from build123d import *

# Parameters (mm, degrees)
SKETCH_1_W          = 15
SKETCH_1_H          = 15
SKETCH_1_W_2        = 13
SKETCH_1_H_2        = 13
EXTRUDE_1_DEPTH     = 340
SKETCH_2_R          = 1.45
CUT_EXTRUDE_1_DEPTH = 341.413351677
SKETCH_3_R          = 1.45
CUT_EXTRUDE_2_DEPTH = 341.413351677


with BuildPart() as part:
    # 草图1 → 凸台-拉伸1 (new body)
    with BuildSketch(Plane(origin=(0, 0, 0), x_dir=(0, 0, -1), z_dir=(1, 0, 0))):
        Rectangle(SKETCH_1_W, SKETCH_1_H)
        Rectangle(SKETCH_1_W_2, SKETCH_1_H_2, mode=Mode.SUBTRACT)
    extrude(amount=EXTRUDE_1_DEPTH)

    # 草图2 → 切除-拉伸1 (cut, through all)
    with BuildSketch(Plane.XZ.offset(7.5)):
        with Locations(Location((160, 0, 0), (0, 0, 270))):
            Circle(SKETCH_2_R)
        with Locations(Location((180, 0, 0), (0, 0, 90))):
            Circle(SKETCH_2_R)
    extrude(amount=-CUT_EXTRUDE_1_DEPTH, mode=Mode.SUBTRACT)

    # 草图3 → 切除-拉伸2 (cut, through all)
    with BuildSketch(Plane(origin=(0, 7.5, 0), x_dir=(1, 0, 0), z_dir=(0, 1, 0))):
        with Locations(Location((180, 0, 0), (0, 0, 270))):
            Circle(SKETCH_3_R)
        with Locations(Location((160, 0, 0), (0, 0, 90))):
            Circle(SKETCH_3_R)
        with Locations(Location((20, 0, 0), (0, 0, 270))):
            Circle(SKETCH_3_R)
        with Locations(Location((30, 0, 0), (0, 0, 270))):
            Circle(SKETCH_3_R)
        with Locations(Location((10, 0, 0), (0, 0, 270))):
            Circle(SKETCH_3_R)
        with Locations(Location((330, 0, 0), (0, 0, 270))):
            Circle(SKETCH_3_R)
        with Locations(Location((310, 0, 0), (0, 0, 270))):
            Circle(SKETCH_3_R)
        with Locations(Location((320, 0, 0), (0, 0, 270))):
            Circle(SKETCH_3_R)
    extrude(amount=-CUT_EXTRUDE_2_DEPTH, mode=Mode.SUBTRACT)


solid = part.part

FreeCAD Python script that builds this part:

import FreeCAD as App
import Part
import Sketcher

doc = App.newDocument("Part")
params = doc.addObject("Spreadsheet::Sheet", "Params")
for row, (alias, value) in enumerate([
    ("sketch1_width", "15 mm"),
    ("sketch1_width2", "13 mm"),
    ("pad1_length", "340 mm"),
    ("sketch2_diameter", "2.9 mm"),
    ("sketch3_diameter", "2.9 mm"),
], start=1):
    params.set(f"A{row}", alias)
    params.set(f"B{row}", "=" + value)
    params.setAlias(f"B{row}", alias)

body = doc.addObject("PartDesign::Body", "Body")

# Sketch on YZ plane
sketch1 = body.newObject("Sketcher::SketchObject", "Sketch")
sketch1.AttachmentSupport = (doc.getObject("YZ_Plane"), [""])
sketch1.MapMode = "FlatFace"
sketch1.addGeometry([
    Part.LineSegment(App.Vector(8, 8, 0), App.Vector(-8, 8, 0)),  # 0
    Part.LineSegment(App.Vector(-8, 8, 0), App.Vector(-8, -8, 0)),  # 1
    Part.LineSegment(App.Vector(-8, -8, 0), App.Vector(8, -8, 0)),  # 2
    Part.LineSegment(App.Vector(8, -8, 0), App.Vector(8, 8, 0)),  # 3
    Part.LineSegment(App.Vector(-6, -6, 0), App.Vector(-6, 6, 0)),  # 4
    Part.LineSegment(App.Vector(-6, 6, 0), App.Vector(6, 6, 0)),  # 5
    Part.LineSegment(App.Vector(6, 6, 0), App.Vector(6, -6, 0)),  # 6
    Part.LineSegment(App.Vector(6, -6, 0), App.Vector(-6, -6, 0)),  # 7
], False)
sketch1.addConstraint([
    Sketcher.Constraint("Coincident", 0, 2, 1, 1),
    Sketcher.Constraint("Coincident", 1, 2, 2, 1),
    Sketcher.Constraint("Coincident", 2, 2, 3, 1),
    Sketcher.Constraint("Coincident", 3, 2, 0, 1),
    Sketcher.Constraint("Coincident", 4, 2, 5, 1),
    Sketcher.Constraint("Coincident", 5, 2, 6, 1),
    Sketcher.Constraint("Coincident", 6, 2, 7, 1),
    Sketcher.Constraint("Coincident", 7, 2, 4, 1),
    Sketcher.Constraint("Horizontal", 0),
    Sketcher.Constraint("Vertical", 1),
    Sketcher.Constraint("Horizontal", 2),
    Sketcher.Constraint("Vertical", 3),
    Sketcher.Constraint("Vertical", 4),
    Sketcher.Constraint("Horizontal", 5),
    Sketcher.Constraint("Vertical", 6),
    Sketcher.Constraint("Horizontal", 7),
    Sketcher.Constraint("Symmetric", 0, 2, 2, 2, -1, 1),
    Sketcher.Constraint("Symmetric", 4, 2, 6, 2, -1, 1),
    Sketcher.Constraint("Equal", 2, 1),
    Sketcher.Constraint("Equal", 7, 4),
    Sketcher.Constraint("DistanceX", 0, 2, 0, 1, 15.0),
    Sketcher.Constraint("DistanceX", 5, 1, 5, 2, 13.0),
])
sketch1.setExpression("Constraints[20]", "Params.sketch1_width")
sketch1.setExpression("Constraints[21]", "Params.sketch1_width2")
pad1 = body.newObject("PartDesign::Pad", "Pad")
pad1.Profile = sketch1
pad1.setExpression("Length", "Params.pad1_length")

# Sketch on XZ plane
sketch2 = body.newObject("Sketcher::SketchObject", "Sketch001")
sketch2.AttachmentSupport = (doc.getObject("XZ_Plane"), [""])
sketch2.MapMode = "FlatFace"
sketch2.AttachmentOffset = App.Placement(App.Vector(0, 0, 7.5), App.Rotation())
sketch2.addGeometry([
    Part.Circle(App.Vector(160, 0, 0), App.Vector(0, 0, 1), 1.4),
    Part.Circle(App.Vector(180, 0, 0), App.Vector(0, 0, 1), 1.4),
], False)
sketch2.addConstraint([
    Sketcher.Constraint("Equal", 0, 1),
    Sketcher.Constraint("PointOnObject", 0, 3, -1),
    Sketcher.Constraint("PointOnObject", 1, 3, -1),
    Sketcher.Constraint("Diameter", 0, 2.9),
    Sketcher.Constraint("DistanceX", -1, 1, 0, 3, 160.0),
    Sketcher.Constraint("DistanceX", -1, 1, 1, 3, 180.0),
])
sketch2.setExpression("Constraints[3]", "Params.sketch2_diameter")
pocket1 = body.newObject("PartDesign::Pocket", "Pocket")
pocket1.Profile = sketch2
pocket1.Type = "ThroughAll"

# Sketch on XZ plane
sketch3 = body.newObject("Sketcher::SketchObject", "Sketch002")
sketch3.AttachmentSupport = (doc.getObject("XZ_Plane"), [""])
sketch3.MapMode = "FlatFace"
sketch3.AttachmentOffset = App.Placement(App.Vector(0, 0, -7.5), App.Rotation())
sketch3.addGeometry([
    Part.Circle(App.Vector(180, 0, 0), App.Vector(0, 0, 1), 1.4),  # 0
    Part.Circle(App.Vector(160, 0, 0), App.Vector(0, 0, 1), 1.4),  # 1
    Part.Circle(App.Vector(20, 0, 0), App.Vector(0, 0, 1), 1.4),  # 2
    Part.Circle(App.Vector(30, 0, 0), App.Vector(0, 0, 1), 1.4),  # 3
    Part.Circle(App.Vector(10, 0, 0), App.Vector(0, 0, 1), 1.4),  # 4
    Part.Circle(App.Vector(330, 0, 0), App.Vector(0, 0, 1), 1.4),  # 5
    Part.Circle(App.Vector(310, 0, 0), App.Vector(0, 0, 1), 1.4),  # 6
    Part.Circle(App.Vector(320, 0, 0), App.Vector(0, 0, 1), 1.4),  # 7
], False)
sketch3.addConstraint([
    Sketcher.Constraint("Equal", 0, 1),
    Sketcher.Constraint("Equal", 1, 2),
    Sketcher.Constraint("Equal", 2, 3),
    Sketcher.Constraint("Equal", 3, 4),
    Sketcher.Constraint("Equal", 4, 5),
    Sketcher.Constraint("Equal", 5, 6),
    Sketcher.Constraint("Equal", 6, 7),
    Sketcher.Constraint("PointOnObject", 0, 3, -1),
    Sketcher.Constraint("PointOnObject", 1, 3, -1),
    Sketcher.Constraint("PointOnObject", 2, 3, -1),
    Sketcher.Constraint("PointOnObject", 3, 3, -1),
    Sketcher.Constraint("PointOnObject", 4, 3, -1),
    Sketcher.Constraint("PointOnObject", 5, 3, -1),
    Sketcher.Constraint("PointOnObject", 6, 3, -1),
    Sketcher.Constraint("PointOnObject", 7, 3, -1),
    Sketcher.Constraint("Diameter", 0, 2.9),
    Sketcher.Constraint("DistanceX", -1, 1, 0, 3, 180.0),
    Sketcher.Constraint("DistanceX", -1, 1, 1, 3, 160.0),
    Sketcher.Constraint("DistanceX", -1, 1, 2, 3, 20.0),
    Sketcher.Constraint("DistanceX", -1, 1, 3, 3, 30.0),
    Sketcher.Constraint("DistanceX", -1, 1, 4, 3, 10.0),
    Sketcher.Constraint("DistanceX", -1, 1, 5, 3, 330.0),
    Sketcher.Constraint("DistanceX", -1, 1, 6, 3, 310.0),
    Sketcher.Constraint("DistanceX", -1, 1, 7, 3, 320.0),
])
sketch3.setExpression("Constraints[15]", "Params.sketch3_diameter")
pocket2 = body.newObject("PartDesign::Pocket", "Pocket001")
pocket2.Profile = sketch3
pocket2.Type = "ThroughAll"
pocket2.Reversed = True

doc.recompute()
